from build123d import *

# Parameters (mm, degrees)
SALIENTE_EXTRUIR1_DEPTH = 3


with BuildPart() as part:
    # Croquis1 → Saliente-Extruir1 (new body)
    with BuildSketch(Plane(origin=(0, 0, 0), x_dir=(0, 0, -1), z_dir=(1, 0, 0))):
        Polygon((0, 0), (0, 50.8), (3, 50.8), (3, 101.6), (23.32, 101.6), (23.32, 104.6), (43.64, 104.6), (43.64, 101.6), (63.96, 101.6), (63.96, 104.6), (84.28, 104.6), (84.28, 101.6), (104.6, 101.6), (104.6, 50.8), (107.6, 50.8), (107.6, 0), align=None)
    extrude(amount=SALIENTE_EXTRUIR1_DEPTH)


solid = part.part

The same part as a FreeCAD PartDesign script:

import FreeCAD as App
import Part
import Sketcher
from FreeCAD import Vector
Q = App.Units.Quantity

doc = App.newDocument("Part")
params = doc.addObject("Spreadsheet::Sheet", "Params")
for row, (alias, value) in enumerate([
    ("sketch1_width", "3 mm"),
    ("sketch1_width2", "50.8 mm"),
    ("sketch1_height", "107.6 mm"),
    ("pad1_length", "3 mm"),
], start=1):
    params.set(f"A{row}", alias)
    params.set(f"B{row}", "=" + value)
    params.setAlias(f"B{row}", alias)

body = doc.addObject("PartDesign::Body", "Body")

sketch1 = body.newObject("Sketcher::SketchObject", "Sketch")
sketch1.AttachmentSupport = (doc.getObject("YZ_Plane"), [""])
sketch1.MapMode = "FlatFace"
sketch1.addGeometry(Part.LineSegment(Vector(50.8, 0, 0), Vector(0, 0, 0)), False)
sketch1.addGeometry(Part.LineSegment(Vector(0, 0, 0), Vector(0, -107.6, 0)), False)
sketch1.addGeometry(Part.LineSegment(Vector(0, -107.6, 0), Vector(50.8, -107.6, 0)), False)
sketch1.addGeometry(Part.LineSegment(Vector(50.8, -107.6, 0), Vector(50.8, -104.6, 0)), False)
sketch1.addGeometry(Part.LineSegment(Vector(50.8, -104.6, 0), Vector(101.6, -104.6, 0)), False)
sketch1.addGeometry(Part.LineSegment(Vector(101.6, -104.6, 0), Vector(101.6, -84.28, 0)), False)
sketch1.addGeometry(Part.LineSegment(Vector(101.6, -84.28, 0), Vector(104.6, -84.28, 0)), False)
sketch1.addGeometry(Part.LineSegment(Vector(104.6, -84.28, 0), Vector(104.6, -63.96, 0)), False)
sketch1.addGeometry(Part.LineSegment(Vector(104.6, -63.96, 0), Vector(101.6, -63.96, 0)), False)
sketch1.addGeometry(Part.LineSegment(Vector(101.6, -63.96, 0), Vector(101.6, -43.64, 0)), False)
sketch1.addGeometry(Part.LineSegment(Vector(101.6, -43.64, 0), Vector(104.6, -43.64, 0)), False)
sketch1.addGeometry(Part.LineSegment(Vector(104.6, -43.64, 0), Vector(104.6, -23.32, 0)), False)
sketch1.addGeometry(Part.LineSegment(Vector(104.6, -23.32, 0), Vector(101.6, -23.32, 0)), False)
sketch1.addGeometry(Part.LineSegment(Vector(101.6, -23.32, 0), Vector(101.6, -3, 0)), False)
sketch1.addGeometry(Part.LineSegment(Vector(101.6, -3, 0), Vector(50.8, -3, 0)), False)
sketch1.addGeometry(Part.LineSegment(Vector(50.8, -3, 0), Vector(50.8, 0, 0)), False)
sketch1.addConstraint(Sketcher.Constraint("Coincident", 0, 2, 1, 1))
sketch1.addConstraint(Sketcher.Constraint("Coincident", 1, 2, 2, 1))
sketch1.addConstraint(Sketcher.Constraint("Coincident", 2, 2, 3, 1))
sketch1.addConstraint(Sketcher.Constraint("Coincident", 3, 2, 4, 1))
sketch1.addConstraint(Sketcher.Constraint("Coincident", 4, 2, 5, 1))
sketch1.addConstraint(Sketcher.Constraint("Coincident", 5, 2, 6, 1))
sketch1.addConstraint(Sketcher.Constraint("Coincident", 6, 2, 7, 1))
sketch1.addConstraint(Sketcher.Constraint("Coincident", 7, 2, 8, 1))
sketch1.addConstraint(Sketcher.Constraint("Coincident", 8, 2, 9, 1))
sketch1.addConstraint(Sketcher.Constraint("Coincident", 9, 2, 10, 1))
sketch1.addConstraint(Sketcher.Constraint("Coincident", 10, 2, 11, 1))
sketch1.addConstraint(Sketcher.Constraint("Coincident", 11, 2, 12, 1))
sketch1.addConstraint(Sketcher.Constraint("Coincident", 12, 2, 13, 1))
sketch1.addConstraint(Sketcher.Constraint("Coincident", 13, 2, 14, 1))
sketch1.addConstraint(Sketcher.Constraint("Coincident", 14, 2, 15, 1))
sketch1.addConstraint(Sketcher.Constraint("Coincident", 15, 2, 0, 1))
sketch1.addConstraint(Sketcher.Constraint("Horizontal", 0))
sketch1.addConstraint(Sketcher.Constraint("Vertical", 1))
sketch1.addConstraint(Sketcher.Constraint("Horizontal", 2))
sketch1.addConstraint(Sketcher.Constraint("Vertical", 3))
sketch1.addConstraint(Sketcher.Constraint("Horizontal", 4))
sketch1.addConstraint(Sketcher.Constraint("Vertical", 5))
sketch1.addConstraint(Sketcher.Constraint("Horizontal", 6))
sketch1.addConstraint(Sketcher.Constraint("Vertical", 7))
sketch1.addConstraint(Sketcher.Constraint("Horizontal", 8))
sketch1.addConstraint(Sketcher.Constraint("Vertical", 9))
sketch1.addConstraint(Sketcher.Constraint("Horizontal", 10))
sketch1.addConstraint(Sketcher.Constraint("Vertical", 11))
sketch1.addConstraint(Sketcher.Constraint("Horizontal", 12))
sketch1.addConstraint(Sketcher.Constraint("Vertical", 13))
sketch1.addConstraint(Sketcher.Constraint("Horizontal", 14))
sketch1.addConstraint(Sketcher.Constraint("Vertical", 15))
sketch1.addConstraint(Sketcher.Constraint("Coincident", 0, 2, -1, 1))
sketch1.addConstraint(Sketcher.Constraint("Vertical", 5, 2, 8, 2))
sketch1.addConstraint(Sketcher.Constraint("Vertical", 7, 2, 10, 2))
sketch1.addConstraint(Sketcher.Constraint("Vertical", 9, 2, 12, 2))
sketch1.addConstraint(Sketcher.Constraint("Vertical", 3, 2, 14, 2))
sketch1.addConstraint(Sketcher.Constraint("Equal", 2, 4))
sketch1.addConstraint(Sketcher.Constraint("Equal", 12, 3))
sketch1.addConstraint(Sketcher.Constraint("Equal", 5, 7))
sketch1.addConstraint(Sketcher.Constraint("Equal", 7, 9))
sketch1.addConstraint(Sketcher.Constraint("Equal", 9, 11))
sketch1.addConstraint(Sketcher.Constraint("Equal", 11, 13))
sketch1.addConstraint(Sketcher.Constraint("Equal", 3, 15))
sketch1.addConstraint(Sketcher.Constraint("DistanceX", 6, 1, 6, 2, Q("3 mm")))
sketch1.addConstraint(Sketcher.Constraint("DistanceX", 0, 2, 0, 1, Q("50.8 mm")))
sketch1.addConstraint(Sketcher.Constraint("DistanceY", 1, 2, 1, 1, Q("107.6 mm")))
sketch1.setExpression("Constraints[44]", "Params.sketch1_width")
sketch1.setExpression("Constraints[45]", "Params.sketch1_width2")
sketch1.setExpression("Constraints[46]", "Params.sketch1_height")
pad1 = body.newObject("PartDesign::Pad", "Pad")
pad1.Profile = sketch1
pad1.setExpression("Length", "Params.pad1_length")

doc.recompute()
